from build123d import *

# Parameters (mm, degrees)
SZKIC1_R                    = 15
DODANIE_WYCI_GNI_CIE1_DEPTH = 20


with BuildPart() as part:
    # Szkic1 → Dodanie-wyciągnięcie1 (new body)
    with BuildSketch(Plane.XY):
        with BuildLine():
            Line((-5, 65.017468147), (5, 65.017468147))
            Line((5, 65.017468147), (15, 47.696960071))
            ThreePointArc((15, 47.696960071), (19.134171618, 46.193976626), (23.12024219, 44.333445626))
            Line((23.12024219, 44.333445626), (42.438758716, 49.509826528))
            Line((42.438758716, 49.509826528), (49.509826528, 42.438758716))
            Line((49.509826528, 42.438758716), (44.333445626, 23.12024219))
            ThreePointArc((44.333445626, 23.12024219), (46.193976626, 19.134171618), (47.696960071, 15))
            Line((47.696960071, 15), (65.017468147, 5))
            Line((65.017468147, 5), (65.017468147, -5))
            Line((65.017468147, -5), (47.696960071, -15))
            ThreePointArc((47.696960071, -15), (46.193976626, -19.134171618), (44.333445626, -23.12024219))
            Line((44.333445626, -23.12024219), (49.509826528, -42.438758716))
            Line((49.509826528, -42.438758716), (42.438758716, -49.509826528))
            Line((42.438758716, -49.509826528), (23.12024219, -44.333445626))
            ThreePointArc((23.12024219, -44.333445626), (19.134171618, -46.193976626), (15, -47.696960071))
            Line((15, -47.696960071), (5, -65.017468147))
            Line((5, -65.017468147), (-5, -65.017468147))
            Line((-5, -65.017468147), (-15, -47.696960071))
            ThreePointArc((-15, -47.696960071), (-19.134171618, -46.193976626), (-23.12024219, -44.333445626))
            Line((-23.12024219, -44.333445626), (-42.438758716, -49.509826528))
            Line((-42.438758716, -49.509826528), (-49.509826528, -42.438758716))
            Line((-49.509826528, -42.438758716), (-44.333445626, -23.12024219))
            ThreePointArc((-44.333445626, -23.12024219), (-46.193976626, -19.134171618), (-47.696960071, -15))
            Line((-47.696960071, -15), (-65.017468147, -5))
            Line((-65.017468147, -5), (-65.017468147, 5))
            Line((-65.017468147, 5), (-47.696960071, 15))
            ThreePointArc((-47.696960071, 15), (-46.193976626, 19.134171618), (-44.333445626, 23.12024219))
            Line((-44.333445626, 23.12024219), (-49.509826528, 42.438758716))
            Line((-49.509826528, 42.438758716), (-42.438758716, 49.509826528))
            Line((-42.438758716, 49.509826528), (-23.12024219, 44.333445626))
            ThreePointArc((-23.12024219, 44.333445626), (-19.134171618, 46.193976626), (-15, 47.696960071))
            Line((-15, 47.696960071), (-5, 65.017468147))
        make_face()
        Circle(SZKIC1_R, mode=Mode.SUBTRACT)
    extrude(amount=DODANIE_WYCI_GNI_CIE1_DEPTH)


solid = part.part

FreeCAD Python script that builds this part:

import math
import FreeCAD as App
import Part
import Sketcher

V = App.Vector
Q = App.Units.Quantity

doc = App.newDocument("Part")
params = doc.addObject("Spreadsheet::Sheet", "Params")
for row, (alias, value) in enumerate([
    ("sketch1_diameter", "30 mm"),
    ("sketch1_radius", "50 mm"),
    ("sketch1_width", "10 mm"),
    ("sketch1_length", "20 mm"),
    ("sketch1_length2", "10 mm"),
    ("pad1_length", "20 mm"),
], start=1):
    params.set(f"A{row}", alias)
    params.set(f"B{row}", "=" + value)
    params.setAlias(f"B{row}", alias)

body = doc.addObject("PartDesign::Body", "Body")

# Sketch on XY plane
sketch1 = doc.addObject("Sketcher::SketchObject", "Sketch")
body.addObject(sketch1)
sketch1.AttachmentSupport = (doc.XY_Plane, [""])
sketch1.MapMode = "FlatFace"
sketch1.addGeometry(Part.LineSegment(V(5, 65.017468, 0), V(-5, 65.017468, 0)), False)
sketch1.addGeometry(Part.LineSegment(V(-5, 65.017468, 0), V(-15, 47.69696, 0)), False)
sketch1.addGeometry(Part.ArcOfCircle(Part.Circle(V(0, 0, 0), V(0, 0, 1), 50), math.radians(107.457603), math.radians(117.542397)), False)
sketch1.addGeometry(Part.LineSegment(V(-23.120242, 44.333446, 0), V(-42.438759, 49.509827, 0)), False)
sketch1.addGeometry(Part.LineSegment(V(-42.438759, 49.509827, 0), V(-49.509827, 42.438759, 0)), False)
sketch1.addGeometry(Part.LineSegment(V(-49.509827, 42.438759, 0), V(-44.333446, 23.120242, 0)), False)
sketch1.addGeometry(Part.ArcOfCircle(Part.Circle(V(0, 0, 0), V(0, 0, 1), 50), math.radians(152.457603), math.radians(162.542397)), False)
sketch1.addGeometry(Part.LineSegment(V(-47.69696, 15, 0), V(-65.017468, 5, 0)), False)
sketch1.addGeometry(Part.LineSegment(V(-65.017468, 5, 0), V(-65.017468, -5, 0)), False)
sketch1.addGeometry(Part.LineSegment(V(-65.017468, -5, 0), V(-47.69696, -15, 0)), False)
sketch1.addGeometry(Part.ArcOfCircle(Part.Circle(V(0, 0, 0), V(0, 0, 1), 50), math.radians(-162.542397), math.radians(-152.457603)), False)
sketch1.addGeometry(Part.LineSegment(V(-44.333446, -23.120242, 0), V(-49.509827, -42.438759, 0)), False)
sketch1.addGeometry(Part.LineSegment(V(-49.509827, -42.438759, 0), V(-42.438759, -49.509827, 0)), False)
sketch1.addGeometry(Part.LineSegment(V(-42.438759, -49.509827, 0), V(-23.120242, -44.333446, 0)), False)
sketch1.addGeometry(Part.ArcOfCircle(Part.Circle(V(0, 0, 0), V(0, 0, 1), 50), math.radians(-117.542397), math.radians(-107.457603)), False)
sketch1.addGeometry(Part.LineSegment(V(-15, -47.69696, 0), V(-5, -65.017468, 0)), False)
sketch1.addGeometry(Part.LineSegment(V(-5, -65.017468, 0), V(5, -65.017468, 0)), False)
sketch1.addGeometry(Part.LineSegment(V(5, -65.017468, 0), V(15, -47.69696, 0)), False)
sketch1.addGeometry(Part.ArcOfCircle(Part.Circle(V(0, 0, 0), V(0, 0, 1), 50), math.radians(-72.542397), math.radians(-62.457603)), False)
sketch1.addGeometry(Part.LineSegment(V(23.120242, -44.333446, 0), V(42.438759, -49.509827, 0)), False)
sketch1.addGeometry(Part.LineSegment(V(42.438759, -49.509827, 0), V(49.509827, -42.438759, 0)), False)
sketch1.addGeometry(Part.LineSegment(V(49.509827, -42.438759, 0), V(44.333446, -23.120242, 0)), False)
sketch1.addGeometry(Part.ArcOfCircle(Part.Circle(V(0, 0, 0), V(0, 0, 1), 50), math.radians(-27.542397), math.radians(-17.457603)), False)
sketch1.addGeometry(Part.LineSegment(V(47.69696, -15, 0), V(65.017468, -5, 0)), False)
sketch1.addGeometry(Part.LineSegment(V(65.017468, -5, 0), V(65.017468, 5, 0)), False)
sketch1.addGeometry(Part.LineSegment(V(65.017468, 5, 0), V(47.69696, 15, 0)), False)
sketch1.addGeometry(Part.ArcOfCircle(Part.Circle(V(0, 0, 0), V(0, 0, 1), 50), math.radians(17.457603), math.radians(27.542397)), False)
sketch1.addGeometry(Part.LineSegment(V(44.333446, 23.120242, 0), V(49.509827, 42.438759, 0)), False)
sketch1.addGeometry(Part.LineSegment(V(49.509827, 42.438759, 0), V(42.438759, 49.509827, 0)), False)
sketch1.addGeometry(Part.LineSegment(V(42.438759, 49.509827, 0), V(23.120242, 44.333446, 0)), False)
sketch1.addGeometry(Part.ArcOfCircle(Part.Circle(V(0, 0, 0), V(0, 0, 1), 50), math.radians(62.457603), math.radians(72.542397)), False)
sketch1.addGeometry(Part.LineSegment(V(15, 47.69696, 0), V(5, 65.017468, 0)), False)
sketch1.addGeometry(Part.Circle(V(0, 0, 0), V(0, 0, 1), 15), False)
sketch1.addConstraint(Sketcher.Constraint("Coincident", 0, 2, 1, 1))
sketch1.addConstraint(Sketcher.Constraint("Coincident", 1, 2, 2, 1))
sketch1.addConstraint(Sketcher.Constraint("Coincident", 2, 2, 3, 1))
sketch1.addConstraint(Sketcher.Constraint("Coincident", 3, 2, 4, 1))
sketch1.addConstraint(Sketcher.Constraint("Coincident", 4, 2, 5, 1))
sketch1.addConstraint(Sketcher.Constraint("Coincident", 5, 2, 6, 1))
sketch1.addConstraint(Sketcher.Constraint("Coincident", 6, 2, 7, 1))
sketch1.addConstraint(Sketcher.Constraint("Coincident", 7, 2, 8, 1))
sketch1.addConstraint(Sketcher.Constraint("Coincident", 8, 2, 9, 1))
sketch1.addConstraint(Sketcher.Constraint("Coincident", 9, 2, 10, 1))
sketch1.addConstraint(Sketcher.Constraint("Coincident", 10, 2, 11, 1))
sketch1.addConstraint(Sketcher.Constraint("Coincident", 11, 2, 12, 1))
sketch1.addConstraint(Sketcher.Constraint("Coincident", 12, 2, 13, 1))
sketch1.addConstraint(Sketcher.Constraint("Coincident", 13, 2, 14, 1))
sketch1.addConstraint(Sketcher.Constraint("Coincident", 14, 2, 15, 1))
sketch1.addConstraint(Sketcher.Constraint("Coincident", 15, 2, 16, 1))
sketch1.addConstraint(Sketcher.Constraint("Coincident", 16, 2, 17, 1))
sketch1.addConstraint(Sketcher.Constraint("Coincident", 17, 2, 18, 1))
sketch1.addConstraint(Sketcher.Constraint("Coincident", 18, 2, 19, 1))
sketch1.addConstraint(Sketcher.Constraint("Coincident", 19, 2, 20, 1))
sketch1.addConstraint(Sketcher.Constraint("Coincident", 20, 2, 21, 1))
sketch1.addConstraint(Sketcher.Constraint("Coincident", 21, 2, 22, 1))
sketch1.addConstraint(Sketcher.Constraint("Coincident", 22, 2, 23, 1))
sketch1.addConstraint(Sketcher.Constraint("Coincident", 23, 2, 24, 1))
sketch1.addConstraint(Sketcher.Constraint("Coincident", 24, 2, 25, 1))
sketch1.addConstraint(Sketcher.Constraint("Coincident", 25, 2, 26, 1))
sketch1.addConstraint(Sketcher.Constraint("Coincident", 26, 2, 27, 1))
sketch1.addConstraint(Sketcher.Constraint("Coincident", 27, 2, 28, 1))
sketch1.addConstraint(Sketcher.Constraint("Coincident", 28, 2, 29, 1))
sketch1.addConstraint(Sketcher.Constraint("Coincident", 29, 2, 30, 1))
sketch1.addConstraint(Sketcher.Constraint("Coincident", 30, 2, 31, 1))
sketch1.addConstraint(Sketcher.Constraint("Coincident", 31, 2, 0, 1))
sketch1.addConstraint(Sketcher.Constraint("Horizontal", 0))
sketch1.addConstraint(Sketcher.Constraint("Vertical", 8))
sketch1.addConstraint(Sketcher.Constraint("Horizontal", 16))
sketch1.addConstraint(Sketcher.Constraint("Vertical", 24))
sketch1.addConstraint(Sketcher.Constraint("Coincident", 2, 3, -1, 1))
sketch1.addConstraint(Sketcher.Constraint("Coincident", 6, 3, -1, 1))
sketch1.addConstraint(Sketcher.Constraint("Coincident", 10, 3, -1, 1))
sketch1.addConstraint(Sketcher.Constraint("Coincident", 14, 3, -1, 1))
sketch1.addConstraint(Sketcher.Constraint("Coincident", 18, 3, -1, 1))
sketch1.addConstraint(Sketcher.Constraint("Coincident", 22, 3, -1, 1))
sketch1.addConstraint(Sketcher.Constraint("Coincident", 26, 3, -1, 1))
sketch1.addConstraint(Sketcher.Constraint("Coincident", 30, 3, -1, 1))
sketch1.addConstraint(Sketcher.Constraint("Coincident", 32, 3, -1, 1))
sketch1.addConstraint(Sketcher.Constraint("Equal", 2, 6))
sketch1.addConstraint(Sketcher.Constraint("Equal", 6, 10))
sketch1.addConstraint(Sketcher.Constraint("Equal", 10, 14))
sketch1.addConstraint(Sketcher.Constraint("Equal", 14, 18))
sketch1.addConstraint(Sketcher.Constraint("Equal", 18, 22))
sketch1.addConstraint(Sketcher.Constraint("Equal", 22, 26))
sketch1.addConstraint(Sketcher.Constraint("Equal", 26, 30))
sketch1.addConstraint(Sketcher.Constraint("Symmetric", 0, 2, 16, 2, -1, 1))
sketch1.addConstraint(Sketcher.Constraint("Symmetric", 3, 2, 19, 2, -1, 1))
sketch1.addConstraint(Sketcher.Constraint("Symmetric", 4, 2, 20, 2, -1, 1))
sketch1.addConstraint(Sketcher.Constraint("Symmetric", 7, 2, 23, 2, -1, 1))
sketch1.addConstraint(Sketcher.Constraint("Symmetric", 11, 2, 27, 2, -1, 1))
sketch1.addConstraint(Sketcher.Constraint("Symmetric", 12, 2, 28, 2, -1, 1))
sketch1.addConstraint(Sketcher.Constraint("Symmetric", 12, 2, 19, 2, -2))
sketch1.addConstraint(Sketcher.Constraint("Symmetric", 11, 2, 20, 2, -2))
sketch1.addConstraint(Sketcher.Constraint("Perpendicular", 1, 9))
sketch1.addConstraint(Sketcher.Constraint("Perpendicular", 3, 11))
sketch1.addConstraint(Sketcher.Constraint("Perpendicular", 4, 12))
sketch1.addConstraint(Sketcher.Constraint("Perpendicular", 5, 13))
sketch1.addConstraint(Sketcher.Constraint("Perpendicular", 7, 15))
sketch1.addConstraint(Sketcher.Constraint("Perpendicular", 9, 17))
sketch1.addConstraint(Sketcher.Constraint("Perpendicular", 11, 19))
sketch1.addConstraint(Sketcher.Constraint("Perpendicular", 13, 21))
sketch1.addConstraint(Sketcher.Constraint("Perpendicular", 15, 23))
sketch1.addConstraint(Sketcher.Constraint("Perpendicular", 17, 25))
sketch1.addConstraint(Sketcher.Constraint("Perpendicular", 19, 27))
sketch1.addConstraint(Sketcher.Constraint("Perpendicular", 21, 29))
sketch1.addConstraint(Sketcher.Constraint("Perpendicular", 23, 31))
sketch1.addConstraint(Sketcher.Constraint("Horizontal", 14, 2, 17, 2))
sketch1.addConstraint(Sketcher.Constraint("Horizontal", 13, 2, 18, 2))
sketch1.addConstraint(Sketcher.Constraint("Horizontal", 9, 2, 22, 2))
sketch1.addConstraint(Sketcher.Constraint("Horizontal", 8, 2, 23, 2))
sketch1.addConstraint(Sketcher.Constraint("Horizontal", 7, 2, 24, 2))
sketch1.addConstraint(Sketcher.Constraint("Horizontal", 1, 2, 30, 2))
sketch1.addConstraint(Sketcher.Constraint("Equal", 16, 8))
sketch1.addConstraint(Sketcher.Constraint("Equal", 1, 3))
sketch1.addConstraint(Sketcher.Constraint("Equal", 3, 5))
sketch1.addConstraint(Sketcher.Constraint("Equal", 5, 7))
sketch1.addConstraint(Sketcher.Constraint("Diameter", 32, Q("30 mm")))
sketch1.addConstraint(Sketcher.Constraint("Radius", 2, Q("50 mm")))
sketch1.addConstraint(Sketcher.Constraint("DistanceX", 0, 2, 0, 1, Q("10 mm")))
sketch1.addConstraint(Sketcher.Constraint("Angle", 1, Q("-120 deg")))
sketch1.addConstraint(Sketcher.Constraint("Angle", 3, Q("165 deg")))
sketch1.addConstraint(Sketcher.Constraint("Distance", 1, Q("20 mm")))
sketch1.addConstraint(Sketcher.Constraint("Distance", 4, Q("10 mm")))
sketch1.setExpression("Constraints[83]", "Params.sketch1_diameter")
sketch1.setExpression("Constraints[84]", "Params.sketch1_radius")
sketch1.setExpression("Constraints[85]", "Params.sketch1_width")
sketch1.setExpression("Constraints[88]", "Params.sketch1_length")
sketch1.setExpression("Constraints[89]", "Params.sketch1_length2")
pad1 = doc.addObject("PartDesign::Pad", "Pad")
body.addObject(pad1)
pad1.Profile = sketch1
pad1.setExpression("Length", "Params.pad1_length")

doc.recompute()
